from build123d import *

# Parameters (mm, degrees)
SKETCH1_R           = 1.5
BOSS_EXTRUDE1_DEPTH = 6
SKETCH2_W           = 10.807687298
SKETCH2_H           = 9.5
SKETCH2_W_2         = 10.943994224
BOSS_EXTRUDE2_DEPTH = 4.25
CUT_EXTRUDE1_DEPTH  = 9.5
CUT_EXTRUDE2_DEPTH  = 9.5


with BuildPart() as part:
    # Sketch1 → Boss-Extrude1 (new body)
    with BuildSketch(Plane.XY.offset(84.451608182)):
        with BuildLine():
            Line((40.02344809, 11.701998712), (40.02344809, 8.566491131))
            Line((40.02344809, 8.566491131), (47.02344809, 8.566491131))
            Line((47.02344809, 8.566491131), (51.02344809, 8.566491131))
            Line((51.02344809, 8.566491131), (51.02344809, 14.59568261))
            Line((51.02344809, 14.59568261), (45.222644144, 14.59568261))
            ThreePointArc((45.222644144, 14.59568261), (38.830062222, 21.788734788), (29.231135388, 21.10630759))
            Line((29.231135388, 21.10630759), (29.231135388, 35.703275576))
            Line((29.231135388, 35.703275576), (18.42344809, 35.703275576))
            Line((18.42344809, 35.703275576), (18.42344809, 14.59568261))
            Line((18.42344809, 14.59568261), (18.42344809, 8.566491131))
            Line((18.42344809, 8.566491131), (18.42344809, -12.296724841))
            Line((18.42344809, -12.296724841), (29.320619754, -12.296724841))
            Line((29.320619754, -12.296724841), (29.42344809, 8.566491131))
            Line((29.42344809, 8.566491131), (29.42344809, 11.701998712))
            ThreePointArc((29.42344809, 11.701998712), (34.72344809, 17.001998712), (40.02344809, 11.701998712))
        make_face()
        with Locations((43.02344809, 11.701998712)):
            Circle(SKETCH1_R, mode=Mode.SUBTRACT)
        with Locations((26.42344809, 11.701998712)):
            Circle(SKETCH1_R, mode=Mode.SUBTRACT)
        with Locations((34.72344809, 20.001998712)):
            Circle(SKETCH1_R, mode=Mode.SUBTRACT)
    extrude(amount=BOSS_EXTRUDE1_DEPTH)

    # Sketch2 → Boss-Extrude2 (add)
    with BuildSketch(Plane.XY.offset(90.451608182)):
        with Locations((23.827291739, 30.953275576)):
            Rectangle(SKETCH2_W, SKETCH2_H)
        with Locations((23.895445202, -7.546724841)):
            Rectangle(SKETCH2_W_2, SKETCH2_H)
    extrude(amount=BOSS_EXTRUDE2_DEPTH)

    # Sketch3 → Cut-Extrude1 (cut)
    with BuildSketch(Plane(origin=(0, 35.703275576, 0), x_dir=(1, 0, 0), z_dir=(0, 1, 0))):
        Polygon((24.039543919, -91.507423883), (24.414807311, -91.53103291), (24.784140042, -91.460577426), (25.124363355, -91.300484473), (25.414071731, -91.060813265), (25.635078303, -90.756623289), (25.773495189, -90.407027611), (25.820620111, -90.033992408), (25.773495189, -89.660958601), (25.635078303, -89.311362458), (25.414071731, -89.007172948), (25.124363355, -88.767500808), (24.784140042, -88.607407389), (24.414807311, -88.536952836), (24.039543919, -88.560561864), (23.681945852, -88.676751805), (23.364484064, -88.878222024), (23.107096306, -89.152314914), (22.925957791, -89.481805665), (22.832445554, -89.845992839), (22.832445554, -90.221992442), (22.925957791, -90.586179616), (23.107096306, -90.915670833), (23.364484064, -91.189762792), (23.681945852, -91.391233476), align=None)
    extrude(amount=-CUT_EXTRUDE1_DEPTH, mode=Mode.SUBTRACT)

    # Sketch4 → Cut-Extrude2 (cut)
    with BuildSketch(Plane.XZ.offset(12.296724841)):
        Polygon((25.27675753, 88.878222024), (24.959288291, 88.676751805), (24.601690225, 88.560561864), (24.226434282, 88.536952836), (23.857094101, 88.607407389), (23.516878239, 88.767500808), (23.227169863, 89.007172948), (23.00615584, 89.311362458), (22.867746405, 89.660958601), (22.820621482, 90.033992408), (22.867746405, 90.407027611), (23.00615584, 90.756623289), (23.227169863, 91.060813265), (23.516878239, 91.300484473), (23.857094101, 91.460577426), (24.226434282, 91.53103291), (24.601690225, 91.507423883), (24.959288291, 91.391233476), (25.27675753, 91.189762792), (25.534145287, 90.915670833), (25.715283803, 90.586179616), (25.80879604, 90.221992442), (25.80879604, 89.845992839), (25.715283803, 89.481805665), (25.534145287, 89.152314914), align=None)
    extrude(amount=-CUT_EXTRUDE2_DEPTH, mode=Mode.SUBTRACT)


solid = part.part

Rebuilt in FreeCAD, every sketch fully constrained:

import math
import FreeCAD as App
import Part
import Sketcher
from FreeCAD import Vector
Q = App.Units.Quantity

doc = App.newDocument("Part")
body = doc.addObject("PartDesign::Body", "Body")

# Sketch on XY plane
sketch1 = body.newObject("Sketcher::SketchObject", "Sketch")
sketch1.AttachmentSupport = (doc.getObject("XY_Plane"), [""])
sketch1.MapMode = "FlatFace"
sketch1.AttachmentOffset = App.Placement(Vector(0, 0, 84.451608), App.Rotation())
sketch1.addGeometry([
    Part.LineSegment(Vector(40, 11.7, 0), Vector(40, 8.6, 0)),  # 0
    Part.LineSegment(Vector(40, 8.6, 0), Vector(51, 8.6, 0)),  # 1
    Part.LineSegment(Vector(51, 8.6, 0), Vector(51, 14.6, 0)),  # 2
    Part.LineSegment(Vector(51, 14.6, 0), Vector(45.2, 14.6, 0)),  # 3
    Part.ArcOfCircle(Part.Circle(Vector(34.7, 11.7, 0), Vector(0, 0, 1), 10.9), math.radians(15), math.radians(120)),  # 4
    Part.LineSegment(Vector(29.2, 21.1, 0), Vector(29.2, 35.7, 0)),  # 5
    Part.LineSegment(Vector(29.2, 35.7, 0), Vector(18.4, 35.7, 0)),  # 6
    Part.LineSegment(Vector(18.4, 35.7, 0), Vector(18.4, -12.3, 0)),  # 7
    Part.LineSegment(Vector(18.4, -12.3, 0), Vector(29.3, -12.3, 0)),  # 8
    Part.LineSegment(Vector(29.3, -12.3, 0), Vector(29.4, 8.6, 0)),  # 9
    Part.LineSegment(Vector(29.4, 8.6, 0), Vector(29.4, 11.7, 0)),  # 10
    Part.ArcOfCircle(Part.Circle(Vector(34.7, 11.7, 0), Vector(0, 0, 1), 5.3), math.radians(0), math.radians(180)),  # 11
    Part.Circle(Vector(26.4, 11.7, 0), Vector(0, 0, 1), 1.5),  # 12
    Part.Circle(Vector(43, 11.7, 0), Vector(0, 0, 1), 1.5),  # 13
    Part.Circle(Vector(34.7, 20, 0), Vector(0, 0, 1), 1.5),  # 14
], False)
sketch1.addConstraint([
    Sketcher.Constraint("Coincident", 0, 2, 1, 1),
    Sketcher.Constraint("Coincident", 1, 2, 2, 1),
    Sketcher.Constraint("Coincident", 2, 2, 3, 1),
    Sketcher.Constraint("Coincident", 3, 2, 4, 1),
    Sketcher.Constraint("Coincident", 4, 2, 5, 1),
    Sketcher.Constraint("Coincident", 5, 2, 6, 1),
    Sketcher.Constraint("Coincident", 6, 2, 7, 1),
    Sketcher.Constraint("Coincident", 7, 2, 8, 1),
    Sketcher.Constraint("Coincident", 8, 2, 9, 1),
    Sketcher.Constraint("Coincident", 9, 2, 10, 1),
    Sketcher.Constraint("Tangent", 10, 2, 11, 2),
    Sketcher.Constraint("Tangent", 11, 1, 0, 1),
    Sketcher.Constraint("Vertical", 0),
    Sketcher.Constraint("Horizontal", 1),
    Sketcher.Constraint("Vertical", 2),
    Sketcher.Constraint("Horizontal", 3),
    Sketcher.Constraint("Vertical", 5),
    Sketcher.Constraint("Horizontal", 6),
    Sketcher.Constraint("Vertical", 7),
    Sketcher.Constraint("Horizontal", 8),
    Sketcher.Constraint("Vertical", 10),
    Sketcher.Constraint("Coincident", 11, 3, 4, 3),
    Sketcher.Constraint("Equal", 12, 13),
    Sketcher.Constraint("Equal", 13, 14),
    Sketcher.Constraint("Horizontal", 11, 3, 12, 3),
    Sketcher.Constraint("Horizontal", 12, 3, 13, 3),
    Sketcher.Constraint("Horizontal", 1, 2, 9, 2),
    Sketcher.Constraint("Vertical", 11, 3, 14, 3),
    Sketcher.Constraint("Diameter", 12, 3.0),
    Sketcher.Constraint("Radius", 11, 5.3),
    Sketcher.Constraint("DistanceX", 1, 1, 1, 2, 11.0),
    Sketcher.Constraint("DistanceY", 7, 2, 7, 1, 48.0),
    Sketcher.Constraint("DistanceX", 0, 2, 13, 3, 3.0),
    Sketcher.Constraint("DistanceX", 6, 2, 12, 3, 8.0),
    Sketcher.Constraint("DistanceX", 12, 3, 9, 2, 3.0),
    Sketcher.Constraint("DistanceY", 4, 3, 14, 3, 8.3),
    Sketcher.Constraint("DistanceY", -1, 1, 4, 3, 11.701999),
    Sketcher.Constraint("Radius", 4, 10.890662),
    Sketcher.Constraint("DistanceX", 8, 1, 8, 2, 10.897172),
    Sketcher.Constraint("DistanceY", 2, 1, 2, 2, 6.029191),
    Sketcher.Constraint("Distance", 9, 20.863469),
    Sketcher.Constraint("DistanceX", 3, 2, 3, 1, 5.800804),
    Sketcher.Constraint("DistanceX", 6, 2, 6, 1, 10.807687),
    Sketcher.Constraint("DistanceX", -1, 1, 4, 3, 34.723448),
])
pad1 = body.newObject("PartDesign::Pad", "Pad")
pad1.Profile = sketch1
pad1.Length = 6

# Sketch on XY plane
sketch2 = body.newObject("Sketcher::SketchObject", "Sketch001")
sketch2.AttachmentSupport = (doc.getObject("XY_Plane"), [""])
sketch2.MapMode = "FlatFace"
sketch2.AttachmentOffset = App.Placement(Vector(0, 0, 90.451608), App.Rotation())
sketch2.addGeometry([
    Part.LineSegment(Vector(18, 36, 0), Vector(18, 26, 0)),  # 0
    Part.LineSegment(Vector(18, 26, 0), Vector(29, 26, 0)),  # 1
    Part.LineSegment(Vector(29, 26, 0), Vector(29, 36, 0)),  # 2
    Part.LineSegment(Vector(29, 36, 0), Vector(18, 36, 0)),  # 3
    Part.LineSegment(Vector(18, -3, 0), Vector(18, -12, 0)),  # 4
    Part.LineSegment(Vector(18, -12, 0), Vector(29, -12, 0)),  # 5
    Part.LineSegment(Vector(29, -12, 0), Vector(29, -3, 0)),  # 6
    Part.LineSegment(Vector(29, -3, 0), Vector(18, -3, 0)),  # 7
], False)
sketch2.addConstraint([
    Sketcher.Constraint("Coincident", 0, 2, 1, 1),
    Sketcher.Constraint("Coincident", 1, 2, 2, 1),
    Sketcher.Constraint("Coincident", 2, 2, 3, 1),
    Sketcher.Constraint("Coincident", 3, 2, 0, 1),
    Sketcher.Constraint("Coincident", 4, 2, 5, 1),
    Sketcher.Constraint("Coincident", 5, 2, 6, 1),
    Sketcher.Constraint("Coincident", 6, 2, 7, 1),
    Sketcher.Constraint("Coincident", 7, 2, 4, 1),
    Sketcher.Constraint("Vertical", 0),
    Sketcher.Constraint("Horizontal", 1),
    Sketcher.Constraint("Vertical", 2),
    Sketcher.Constraint("Horizontal", 3),
    Sketcher.Constraint("Vertical", 4),
    Sketcher.Constraint("Horizontal", 5),
    Sketcher.Constraint("Vertical", 6),
    Sketcher.Constraint("Horizontal", 7),
    Sketcher.Constraint("Vertical", 3, 2, 4, 2),
    Sketcher.Constraint("Equal", 2, 4),
    Sketcher.Constraint("DistanceY", 0, 2, 0, 1, 9.5),
    Sketcher.Constraint("DistanceY", 4, 2, 3, 2, 48.0),
    Sketcher.Constraint("DistanceX", 1, 1, 1, 2, 10.807687),
    Sketcher.Constraint("DistanceX", 5, 1, 5, 2, 10.943994),
    Sketcher.Constraint("DistanceX", -1, 1, 0, 2, 18.423448),
    Sketcher.Constraint("DistanceY", -1, 1, 0, 2, 26.203276),
])
pad2 = body.newObject("PartDesign::Pad", "Pad001")
pad2.Profile = sketch2
pad2.Length = 4.25

# Sketch on XZ plane
sketch3 = body.newObject("Sketcher::SketchObject", "Sketch002")
sketch3.AttachmentSupport = (doc.getObject("XZ_Plane"), [""])
sketch3.MapMode = "FlatFace"
sketch3.AttachmentOffset = App.Placement(Vector(0, 0, -35.703276), App.Rotation())
sketch3.addGeometry([
    Part.LineSegment(Vector(24.039544, 91.507424, 0), Vector(24.414807, 91.531033, 0)),  # 0
    Part.LineSegment(Vector(24.414807, 91.531033, 0), Vector(24.78414, 91.460577, 0)),  # 1
    Part.LineSegment(Vector(24.78414, 91.460577, 0), Vector(25.124363, 91.300484, 0)),  # 2
    Part.LineSegment(Vector(25.124363, 91.300484, 0), Vector(25.414072, 91.060813, 0)),  # 3
    Part.LineSegment(Vector(25.414072, 91.060813, 0), Vector(25.635078, 90.756623, 0)),  # 4
    Part.LineSegment(Vector(25.635078, 90.756623, 0), Vector(25.773495, 90.407028, 0)),  # 5
    Part.LineSegment(Vector(25.773495, 90.407028, 0), Vector(25.82062, 90.033992, 0)),  # 6
    Part.LineSegment(Vector(25.82062, 90.033992, 0), Vector(25.773495, 89.660959, 0)),  # 7
    Part.LineSegment(Vector(25.773495, 89.660959, 0), Vector(25.635078, 89.311362, 0)),  # 8
    Part.LineSegment(Vector(25.635078, 89.311362, 0), Vector(25.414072, 89.007173, 0)),  # 9
    Part.LineSegment(Vector(25.414072, 89.007173, 0), Vector(25.124363, 88.767501, 0)),  # 10
    Part.LineSegment(Vector(25.124363, 88.767501, 0), Vector(24.78414, 88.607407, 0)),  # 11
    Part.LineSegment(Vector(24.78414, 88.607407, 0), Vector(24.414807, 88.536953, 0)),  # 12
    Part.LineSegment(Vector(24.414807, 88.536953, 0), Vector(24.039544, 88.560562, 0)),  # 13
    Part.LineSegment(Vector(24.039544, 88.560562, 0), Vector(23.681946, 88.676752, 0)),  # 14
    Part.LineSegment(Vector(23.681946, 88.676752, 0), Vector(23.364484, 88.878222, 0)),  # 15
    Part.LineSegment(Vector(23.364484, 88.878222, 0), Vector(23.107096, 89.152315, 0)),  # 16
    Part.LineSegment(Vector(23.107096, 89.152315, 0), Vector(22.925958, 89.481806, 0)),  # 17
    Part.LineSegment(Vector(22.925958, 89.481806, 0), Vector(22.832446, 89.845993, 0)),  # 18
    Part.LineSegment(Vector(22.832446, 89.845993, 0), Vector(22.832446, 90.221992, 0)),  # 19
    Part.LineSegment(Vector(22.832446, 90.221992, 0), Vector(22.925958, 90.58618, 0)),  # 20
    Part.LineSegment(Vector(22.925958, 90.58618, 0), Vector(23.107096, 90.915671, 0)),  # 21
    Part.LineSegment(Vector(23.107096, 90.915671, 0), Vector(23.364484, 91.189763, 0)),  # 22
    Part.LineSegment(Vector(23.364484, 91.189763, 0), Vector(23.681946, 91.391233, 0)),  # 23
    Part.LineSegment(Vector(23.681946, 91.391233, 0), Vector(24.039544, 91.507424, 0)),  # 24
], False)
sketch3.addConstraint([
    Sketcher.Constraint("Coincident", 0, 2, 1, 1),
    Sketcher.Constraint("Coincident", 1, 2, 2, 1),
    Sketcher.Constraint("Coincident", 2, 2, 3, 1),
    Sketcher.Constraint("Coincident", 3, 2, 4, 1),
    Sketcher.Constraint("Coincident", 4, 2, 5, 1),
    Sketcher.Constraint("Coincident", 5, 2, 6, 1),
    Sketcher.Constraint("Coincident", 6, 2, 7, 1),
    Sketcher.Constraint("Coincident", 7, 2, 8, 1),
    Sketcher.Constraint("Coincident", 8, 2, 9, 1),
    Sketcher.Constraint("Coincident", 9, 2, 10, 1),
    Sketcher.Constraint("Coincident", 10, 2, 11, 1),
    Sketcher.Constraint("Coincident", 11, 2, 12, 1),
    Sketcher.Constraint("Coincident", 12, 2, 13, 1),
    Sketcher.Constraint("Coincident", 13, 2, 14, 1),
    Sketcher.Constraint("Coincident", 14, 2, 15, 1),
    Sketcher.Constraint("Coincident", 15, 2, 16, 1),
    Sketcher.Constraint("Coincident", 16, 2, 17, 1),
    Sketcher.Constraint("Coincident", 17, 2, 18, 1),
    Sketcher.Constraint("Coincident", 18, 2, 19, 1),
    Sketcher.Constraint("Coincident", 19, 2, 20, 1),
    Sketcher.Constraint("Coincident", 20, 2, 21, 1),
    Sketcher.Constraint("Coincident", 21, 2, 22, 1),
    Sketcher.Constraint("Coincident", 22, 2, 23, 1),
    Sketcher.Constraint("Coincident", 23, 2, 24, 1),
    Sketcher.Constraint("Coincident", 24, 2, 0, 1),
    Sketcher.Constraint("Vertical", 19),
    Sketcher.Constraint("DistanceY", 19, 1, 19, 2, 0.376),
    Sketcher.Constraint("Distance", 4, 0.375999),
    Sketcher.Constraint("Distance", 5, 0.376),
    Sketcher.Constraint("Distance", 6, 0.376),
    Sketcher.Constraint("Distance", 7, 0.375999),
    Sketcher.Constraint("Distance", 8, 0.376001),
    Sketcher.Constraint("Distance", 9, 0.375999),
    Sketcher.Constraint("Distance", 14, 0.376001),
    Sketcher.Constraint("Distance", 16, 0.375999),
    Sketcher.Constraint("Distance", 17, 0.375999),
    Sketcher.Constraint("Distance", 18, 0.376001),
    Sketcher.Constraint("Distance", 20, 0.376001),
    Sketcher.Constraint("Distance", 21, 0.375999),
    Sketcher.Constraint("Distance", 22, 0.375998),
    Sketcher.Constraint("Distance", 24, 0.376001),
    Sketcher.Constraint("DistanceY", -1, 1, 10, 2, 88.767501),
    Sketcher.Constraint("DistanceY", 13, 2, 8, 2, 0.750801),
    Sketcher.Constraint("DistanceX", 14, 2, 13, 2, 0.357598),
    Sketcher.Constraint("DistanceY", 12, 2, 14, 2, 0.139799),
    Sketcher.Constraint("DistanceX", 18, 2, 14, 2, 0.8495),
    Sketcher.Constraint("DistanceY", 23, 2, 0, 2, 0.139799),
    Sketcher.Constraint("DistanceX", 23, 2, 24, 2, 0.357598),
    Sketcher.Constraint("DistanceX", -1, 1, 1, 2, 24.78414),
    Sketcher.Constraint("DistanceX", -1, 1, 3, 2, 25.414072),
    Sketcher.Constraint("DistanceX", -1, 1, 4, 2, 25.635078),
    Sketcher.Constraint("DistanceX", -1, 1, 6, 2, 25.82062),
    Sketcher.Constraint("DistanceY", -1, 1, 7, 2, 89.660959),
    Sketcher.Constraint("DistanceX", -1, 1, 8, 2, 25.635078),
    Sketcher.Constraint("DistanceX", -1, 1, 9, 2, 25.414072),
    Sketcher.Constraint("DistanceX", -1, 1, 11, 2, 24.78414),
    Sketcher.Constraint("DistanceY", -1, 1, 13, 2, 88.560562),
    Sketcher.Constraint("DistanceY", -1, 1, 20, 2, 90.58618),
    Sketcher.Constraint("DistanceY", -1, 1, 21, 2, 90.915671),
    Sketcher.Constraint("DistanceY", 2, 2, 0, 2, 0.230548),
    Sketcher.Constraint("DistanceX", 2, 2, 3, 2, 0.289708),
    Sketcher.Constraint("DistanceY", 3, 2, 2, 2, 0.239671),
    Sketcher.Constraint("DistanceX", 0, 2, 4, 2, 1.220271),
    Sketcher.Constraint("DistanceX", 2, 2, 5, 2, 0.649132),
    Sketcher.Constraint("DistanceY", 5, 2, 1, 2, 1.05355),
    Sketcher.Constraint("DistanceX", 10, 2, 9, 2, 0.289708),
    Sketcher.Constraint("DistanceY", 11, 2, 7, 2, 1.053551),
    Sketcher.Constraint("DistanceX", 12, 2, 8, 2, 1.220271),
    Sketcher.Constraint("DistanceX", 13, 2, 10, 2, 1.084819),
    Sketcher.Constraint("DistanceX", 15, 2, 14, 2, 0.317462),
    Sketcher.Constraint("DistanceY", 14, 2, 15, 2, 0.20147),
    Sketcher.Constraint("DistanceX", 16, 2, 14, 2, 0.57485),
    Sketcher.Constraint("DistanceX", 17, 2, 16, 2, 0.181139),
    Sketcher.Constraint("DistanceY", 21, 2, 22, 2, 0.274092),
    Sketcher.Constraint("DistanceX", 22, 2, 23, 2, 0.317462),
])
pocket1 = body.newObject("PartDesign::Pocket", "Pocket")
pocket1.Profile = sketch3
pocket1.Length = 9.5
pocket1.Reversed = True

# Sketch on XZ plane
sketch4 = body.newObject("Sketcher::SketchObject", "Sketch003")
sketch4.AttachmentSupport = (doc.getObject("XZ_Plane"), [""])
sketch4.MapMode = "FlatFace"
sketch4.AttachmentOffset = App.Placement(Vector(0, 0, 12.296725), App.Rotation())
sketch4.addGeometry([
    Part.LineSegment(Vector(24.96, 88.68, 0), Vector(25.28, 88.88, 0)),  # 0
    Part.LineSegment(Vector(25.28, 88.88, 0), Vector(25.53, 89.15, 0)),  # 1
    Part.LineSegment(Vector(25.53, 89.15, 0), Vector(25.72, 89.48, 0)),  # 2
    Part.LineSegment(Vector(25.72, 89.48, 0), Vector(25.81, 89.85, 0)),  # 3
    Part.LineSegment(Vector(25.81, 89.85, 0), Vector(25.81, 90.22, 0)),  # 4
    Part.LineSegment(Vector(25.81, 90.22, 0), Vector(25.72, 90.59, 0)),  # 5
    Part.LineSegment(Vector(25.72, 90.59, 0), Vector(25.53, 90.92, 0)),  # 6
    Part.LineSegment(Vector(25.53, 90.92, 0), Vector(25.28, 91.19, 0)),  # 7
    Part.LineSegment(Vector(25.28, 91.19, 0), Vector(24.96, 91.39, 0)),  # 8
    Part.LineSegment(Vector(24.96, 91.39, 0), Vector(24.6, 91.51, 0)),  # 9
    Part.LineSegment(Vector(24.6, 91.51, 0), Vector(24.23, 91.53, 0)),  # 10
    Part.LineSegment(Vector(24.23, 91.53, 0), Vector(23.86, 91.46, 0)),  # 11
    Part.LineSegment(Vector(23.86, 91.46, 0), Vector(23.52, 91.3, 0)),  # 12
    Part.LineSegment(Vector(23.52, 91.3, 0), Vector(23.23, 91.06, 0)),  # 13
    Part.LineSegment(Vector(23.23, 91.06, 0), Vector(23.01, 90.76, 0)),  # 14
    Part.LineSegment(Vector(23.01, 90.76, 0), Vector(22.87, 90.41, 0)),  # 15
    Part.LineSegment(Vector(22.87, 90.41, 0), Vector(22.82, 90.03, 0)),  # 16
    Part.LineSegment(Vector(22.82, 90.03, 0), Vector(22.87, 89.66, 0)),  # 17
    Part.LineSegment(Vector(22.87, 89.66, 0), Vector(23.01, 89.31, 0)),  # 18
    Part.LineSegment(Vector(23.01, 89.31, 0), Vector(23.23, 89.01, 0)),  # 19
    Part.LineSegment(Vector(23.23, 89.01, 0), Vector(23.52, 88.77, 0)),  # 20
    Part.LineSegment(Vector(23.52, 88.77, 0), Vector(23.86, 88.61, 0)),  # 21
    Part.LineSegment(Vector(23.86, 88.61, 0), Vector(24.23, 88.54, 0)),  # 22
    Part.LineSegment(Vector(24.23, 88.54, 0), Vector(24.6, 88.56, 0)),  # 23
    Part.LineSegment(Vector(24.6, 88.56, 0), Vector(24.96, 88.68, 0)),  # 24
], False)
sketch4.addConstraint([
    Sketcher.Constraint("Coincident", 0, 2, 1, 1),
    Sketcher.Constraint("Coincident", 1, 2, 2, 1),
    Sketcher.Constraint("Coincident", 2, 2, 3, 1),
    Sketcher.Constraint("Coincident", 3, 2, 4, 1),
    Sketcher.Constraint("Coincident", 4, 2, 5, 1),
    Sketcher.Constraint("Coincident", 5, 2, 6, 1),
    Sketcher.Constraint("Coincident", 6, 2, 7, 1),
    Sketcher.Constraint("Coincident", 7, 2, 8, 1),
    Sketcher.Constraint("Coincident", 8, 2, 9, 1),
    Sketcher.Constraint("Coincident", 9, 2, 10, 1),
    Sketcher.Constraint("Coincident", 10, 2, 11, 1),
    Sketcher.Constraint("Coincident", 11, 2, 12, 1),
    Sketcher.Constraint("Coincident", 12, 2, 13, 1),
    Sketcher.Constraint("Coincident", 13, 2, 14, 1),
    Sketcher.Constraint("Coincident", 14, 2, 15, 1),
    Sketcher.Constraint("Coincident", 15, 2, 16, 1),
    Sketcher.Constraint("Coincident", 16, 2, 17, 1),
    Sketcher.Constraint("Coincident", 17, 2, 18, 1),
    Sketcher.Constraint("Coincident", 18, 2, 19, 1),
    Sketcher.Constraint("Coincident", 19, 2, 20, 1),
    Sketcher.Constraint("Coincident", 20, 2, 21, 1),
    Sketcher.Constraint("Coincident", 21, 2, 22, 1),
    Sketcher.Constraint("Coincident", 22, 2, 23, 1),
    Sketcher.Constraint("Coincident", 23, 2, 24, 1),
    Sketcher.Constraint("Coincident", 24, 2, 0, 1),
    Sketcher.Constraint("Vertical", 4),
    Sketcher.Constraint("Vertical", 2, 2, 5, 2),
    Sketcher.Constraint("Vertical", 1, 2, 6, 2),
    Sketcher.Constraint("Vertical", 0, 2, 7, 2),
    Sketcher.Constraint("Vertical", 15, 2, 17, 2),
    Sketcher.Constraint("Vertical", 14, 2, 18, 2),
    Sketcher.Constraint("Vertical", 13, 2, 19, 2),
    Sketcher.Constraint("Vertical", 12, 2, 20, 2),
    Sketcher.Constraint("Vertical", 11, 2, 21, 2),
    Sketcher.Constraint("Vertical", 10, 2, 22, 2),
    Sketcher.Constraint("Vertical", 9, 2, 23, 2),
    Sketcher.Constraint("Vertical", 8, 2, 24, 2),
    Sketcher.Constraint("Equal", 1, 2),
    Sketcher.Constraint("Equal", 1, 3),
    Sketcher.Constraint("Equal", 3, 5),
    Sketcher.Constraint("Equal", 5, 6),
    Sketcher.Constraint("Equal", 6, 7),
    Sketcher.Constraint("Equal", 5, 8),
    Sketcher.Constraint("Equal", 8, 9),
    Sketcher.Constraint("Equal", 7, 10),
    Sketcher.Constraint("Equal", 9, 11),
    Sketcher.Constraint("Equal", 11, 12),
    Sketcher.Constraint("Equal", 10, 13),
    Sketcher.Constraint("Equal", 13, 15),
    Sketcher.Constraint("Equal", 12, 16),
    Sketcher.Constraint("Equal", 16, 17),
    Sketcher.Constraint("Equal", 17, 18),
    Sketcher.Constraint("Equal", 14, 19),
    Sketcher.Constraint("Equal", 18, 20),
    Sketcher.Constraint("Equal", 16, 21),
    Sketcher.Constraint("Equal", 21, 22),
    Sketcher.Constraint("Equal", 20, 23),
    Sketcher.Constraint("Equal", 22, 24),
    Sketcher.Constraint("Angle", 10, Q("176.400012 deg")),
    Sketcher.Constraint("Angle", 11, Q("-169.199989 deg")),
    Sketcher.Constraint("Angle", 21, Q("-25.199998 deg")),
    Sketcher.Constraint("DistanceY", 4, 1, 4, 2, 0.376),
    Sketcher.Constraint("Distance", 0, 0.376001),
    Sketcher.Constraint("Distance", 1, 0.375999),
    Sketcher.Constraint("DistanceY", -1, 1, 20, 2, 88.767501),
    Sketcher.Constraint("DistanceX", 9, 2, 8, 2, 0.357598),
    Sketcher.Constraint("DistanceY", 14, 2, 9, 2, 0.750801),
    Sketcher.Constraint("DistanceY", -1, 1, 5, 2, 90.58618),
    Sketcher.Constraint("DistanceY", -1, 1, 6, 2, 90.915671),
    Sketcher.Constraint("DistanceX", -1, 1, 8, 2, 24.959288),
    Sketcher.Constraint("DistanceX", -1, 1, 13, 2, 23.22717),
    Sketcher.Constraint("DistanceX", -1, 1, 16, 2, 22.820621),
    Sketcher.Constraint("DistanceY", -1, 1, 17, 2, 89.660959),
    Sketcher.Constraint("DistanceX", 1, 2, 3, 2, 0.274651),
    Sketcher.Constraint("DistanceX", 0, 2, 3, 2, 0.532039),
])
pocket2 = body.newObject("PartDesign::Pocket", "Pocket001")
pocket2.Profile = sketch4
pocket2.Length = 9.5

doc.recompute()
